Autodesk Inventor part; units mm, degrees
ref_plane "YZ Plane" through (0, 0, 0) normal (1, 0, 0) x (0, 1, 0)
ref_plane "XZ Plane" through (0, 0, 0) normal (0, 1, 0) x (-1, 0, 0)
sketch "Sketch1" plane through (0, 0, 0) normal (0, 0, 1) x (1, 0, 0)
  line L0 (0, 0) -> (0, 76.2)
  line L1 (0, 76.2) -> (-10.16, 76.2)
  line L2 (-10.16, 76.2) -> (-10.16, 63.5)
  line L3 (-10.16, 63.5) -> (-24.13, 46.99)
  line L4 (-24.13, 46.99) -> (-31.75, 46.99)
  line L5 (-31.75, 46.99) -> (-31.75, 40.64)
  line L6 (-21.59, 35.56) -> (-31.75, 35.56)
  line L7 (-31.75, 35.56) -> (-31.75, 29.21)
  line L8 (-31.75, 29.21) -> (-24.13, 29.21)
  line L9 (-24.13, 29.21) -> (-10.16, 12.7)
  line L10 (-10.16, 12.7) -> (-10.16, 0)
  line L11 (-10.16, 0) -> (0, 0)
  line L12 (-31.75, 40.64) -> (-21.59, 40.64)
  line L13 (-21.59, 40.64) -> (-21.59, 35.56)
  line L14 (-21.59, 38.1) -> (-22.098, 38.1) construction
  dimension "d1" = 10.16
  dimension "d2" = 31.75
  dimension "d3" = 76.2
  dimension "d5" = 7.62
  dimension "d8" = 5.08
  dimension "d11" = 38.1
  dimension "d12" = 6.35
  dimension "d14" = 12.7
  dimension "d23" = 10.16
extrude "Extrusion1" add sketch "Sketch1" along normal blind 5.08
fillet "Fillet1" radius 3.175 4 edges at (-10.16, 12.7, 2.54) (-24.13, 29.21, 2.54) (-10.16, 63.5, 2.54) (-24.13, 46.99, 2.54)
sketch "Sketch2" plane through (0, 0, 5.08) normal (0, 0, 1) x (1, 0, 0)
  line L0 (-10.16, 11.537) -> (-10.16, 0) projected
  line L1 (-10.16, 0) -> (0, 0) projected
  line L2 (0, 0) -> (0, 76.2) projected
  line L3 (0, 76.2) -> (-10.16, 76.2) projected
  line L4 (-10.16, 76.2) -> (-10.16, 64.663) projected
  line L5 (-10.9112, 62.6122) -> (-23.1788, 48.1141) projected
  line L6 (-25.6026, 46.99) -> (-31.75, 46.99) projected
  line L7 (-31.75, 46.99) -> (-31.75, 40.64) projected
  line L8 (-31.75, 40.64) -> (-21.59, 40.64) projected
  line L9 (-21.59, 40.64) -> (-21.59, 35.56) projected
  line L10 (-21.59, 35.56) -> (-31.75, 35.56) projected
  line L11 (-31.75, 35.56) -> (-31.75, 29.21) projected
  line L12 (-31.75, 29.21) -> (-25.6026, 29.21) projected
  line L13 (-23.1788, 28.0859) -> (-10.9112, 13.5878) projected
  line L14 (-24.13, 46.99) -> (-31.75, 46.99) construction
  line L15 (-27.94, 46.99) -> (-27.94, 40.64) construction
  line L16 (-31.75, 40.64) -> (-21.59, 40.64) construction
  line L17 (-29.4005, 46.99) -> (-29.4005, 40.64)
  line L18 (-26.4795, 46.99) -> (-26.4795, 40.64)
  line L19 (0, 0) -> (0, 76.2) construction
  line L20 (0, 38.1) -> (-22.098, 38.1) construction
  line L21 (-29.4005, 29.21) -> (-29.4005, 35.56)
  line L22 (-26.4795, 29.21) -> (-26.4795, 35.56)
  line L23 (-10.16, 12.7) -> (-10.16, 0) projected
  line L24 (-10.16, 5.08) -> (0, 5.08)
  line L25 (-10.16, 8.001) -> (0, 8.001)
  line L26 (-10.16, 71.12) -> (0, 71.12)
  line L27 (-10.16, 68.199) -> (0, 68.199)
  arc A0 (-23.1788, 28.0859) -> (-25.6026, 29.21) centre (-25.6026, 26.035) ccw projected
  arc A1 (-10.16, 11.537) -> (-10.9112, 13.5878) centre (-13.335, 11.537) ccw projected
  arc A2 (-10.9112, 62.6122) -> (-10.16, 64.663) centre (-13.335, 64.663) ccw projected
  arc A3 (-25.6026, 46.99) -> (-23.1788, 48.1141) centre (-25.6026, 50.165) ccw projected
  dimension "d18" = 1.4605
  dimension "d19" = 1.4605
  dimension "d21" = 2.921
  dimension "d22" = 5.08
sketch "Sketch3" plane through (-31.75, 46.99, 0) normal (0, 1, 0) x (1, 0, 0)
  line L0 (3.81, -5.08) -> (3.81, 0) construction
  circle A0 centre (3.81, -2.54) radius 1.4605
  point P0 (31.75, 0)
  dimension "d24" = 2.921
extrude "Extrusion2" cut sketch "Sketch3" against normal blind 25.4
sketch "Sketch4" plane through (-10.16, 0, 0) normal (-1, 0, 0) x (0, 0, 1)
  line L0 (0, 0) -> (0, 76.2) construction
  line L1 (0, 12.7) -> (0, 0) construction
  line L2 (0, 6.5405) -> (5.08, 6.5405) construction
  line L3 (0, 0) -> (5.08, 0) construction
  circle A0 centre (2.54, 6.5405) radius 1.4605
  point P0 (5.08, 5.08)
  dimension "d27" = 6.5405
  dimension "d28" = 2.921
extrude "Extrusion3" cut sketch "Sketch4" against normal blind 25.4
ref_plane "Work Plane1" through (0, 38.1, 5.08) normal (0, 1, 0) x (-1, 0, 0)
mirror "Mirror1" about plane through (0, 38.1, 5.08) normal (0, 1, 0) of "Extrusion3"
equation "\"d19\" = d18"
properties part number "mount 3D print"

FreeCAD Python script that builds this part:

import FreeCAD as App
import Part
import Sketcher
from FreeCAD import Vector
Q = App.Units.Quantity


def edges_at(feature, points):
    """Names of the edges that pass closest to the given points."""
    edges = feature.Shape.Edges
    near = lambda p: min(range(len(edges)), key=lambda i: edges[i].distToShape(Part.Vertex(*p))[0])
    return sorted({f"Edge{near(p) + 1}" for p in points})


def add_polygon(sketch, points):
    """Adds a closed chain of lines whose ends are joined by coincident constraints."""
    first, n = sketch.GeometryCount, len(points)
    for a, b in zip(points, points[1:] + points[:1]):
        sketch.addGeometry(Part.LineSegment(App.Vector(*a, 0), App.Vector(*b, 0)), False)
    for i in range(n):
        sketch.addConstraint(Sketcher.Constraint("Coincident", first + i, 2, first + (i + 1) % n, 1))

doc = App.newDocument("Part")
body = doc.addObject("PartDesign::Body", "Body")

sketch1 = body.newObject("Sketcher::SketchObject", "Sketch")
sketch1.AttachmentSupport = (doc.getObject("XY_Plane"), [""])
sketch1.MapMode = "FlatFace"
add_polygon(sketch1, [(-10.16, 0), (0, 0), (0, 76.2), (-10.16, 76.2), (-10.16, 63.5), (-24.13, 46.99), (-31.75, 46.99), (-31.75, 40.64), (-21.59, 40.64), (-21.59, 35.56), (-31.75, 35.56), (-31.75, 29.21), (-24.13, 29.21), (-10.16, 12.7)])
sketch1.addConstraint(Sketcher.Constraint("Horizontal", 0))
sketch1.addConstraint(Sketcher.Constraint("Vertical", 1))
sketch1.addConstraint(Sketcher.Constraint("Horizontal", 2))
sketch1.addConstraint(Sketcher.Constraint("Vertical", 3))
sketch1.addConstraint(Sketcher.Constraint("Horizontal", 5))
sketch1.addConstraint(Sketcher.Constraint("Vertical", 6))
sketch1.addConstraint(Sketcher.Constraint("Horizontal", 7))
sketch1.addConstraint(Sketcher.Constraint("Vertical", 8))
sketch1.addConstraint(Sketcher.Constraint("Horizontal", 9))
sketch1.addConstraint(Sketcher.Constraint("Vertical", 10))
sketch1.addConstraint(Sketcher.Constraint("Horizontal", 11))
sketch1.addConstraint(Sketcher.Constraint("Vertical", 13))
sketch1.addConstraint(Sketcher.Constraint("Coincident", 0, 2, -1, 1))
sketch1.addConstraint(Sketcher.Constraint("Vertical", 6, 2, 9, 2))
sketch1.addConstraint(Sketcher.Constraint("Vertical", 4, 2, 11, 2))
sketch1.addConstraint(Sketcher.Constraint("Vertical", 3, 2, 12, 2))
sketch1.addConstraint(Sketcher.Constraint("Equal", 2, 7))
sketch1.addConstraint(Sketcher.Constraint("Equal", 6, 10))
sketch1.addConstraint(Sketcher.Constraint("Equal", 3, 13))
sketch1.addConstraint(Sketcher.Constraint("Equal", 4, 12))
sketch1.addConstraint(Sketcher.Constraint("DistanceY", 1, 1, 1, 2, Q("3 in")))
sketch1.addConstraint(Sketcher.Constraint("DistanceX", 0, 1, 0, 2, Q("0.4 in")))
sketch1.addConstraint(Sketcher.Constraint("DistanceX", 5, 2, 5, 1, Q("0.3 in")))
sketch1.addConstraint(Sketcher.Constraint("DistanceY", 3, 2, 3, 1, Q("0.5 in")))
sketch1.addConstraint(Sketcher.Constraint("DistanceY", 8, 2, 8, 1, Q("0.2 in")))
sketch1.addConstraint(Sketcher.Constraint("DistanceY", 6, 2, 6, 1, Q("0.25 in")))
sketch1.addConstraint(Sketcher.Constraint("DistanceX", 5, 2, -1, 1, Q("1.25 in")))
pad1 = body.newObject("PartDesign::Pad", "Pad")
pad1.Profile = sketch1
pad1.Length = Q("0.2 in")
doc.recompute()

fillet = body.newObject("PartDesign::Fillet", "Fillet")
fillet.Base = (pad1, edges_at(pad1, [
    (-10.16, 12.7, 2.54),
    (-24.13, 29.21, 2.54),
    (-10.16, 63.5, 2.54),
    (-24.13, 46.99, 2.54),
]))
fillet.Radius = Q("0.125 in")

sketch2 = body.newObject("Sketcher::SketchObject", "Sketch001")
sketch2.AttachmentSupport = (doc.getObject("XZ_Plane"), [""])
sketch2.MapMode = "FlatFace"
sketch2.AttachmentOffset = App.Placement(Vector(0, 0, -1.85 * 25.4), App.Rotation())
sketch2.addGeometry(Part.Circle(Vector(-27.94, 2.54, 0), Vector(0, 0, 1), 1.4605), False)
sketch2.addConstraint(Sketcher.Constraint("Diameter", 0, Q("0.115 in")))
sketch2.addConstraint(Sketcher.Constraint("DistanceX", 0, 3, -1, 1, Q("1.1 in")))
sketch2.addConstraint(Sketcher.Constraint("DistanceY", -1, 1, 0, 3, Q("0.1 in")))
pocket1 = body.newObject("PartDesign::Pocket", "Pocket")
pocket1.Profile = sketch2
pocket1.Length = Q("1 in")
pocket1.Reversed = True

sketch3 = body.newObject("Sketcher::SketchObject", "Sketch002")
sketch3.AttachmentSupport = (doc.getObject("YZ_Plane"), [""])
sketch3.MapMode = "FlatFace"
sketch3.AttachmentOffset = App.Placement(Vector(0, 0, -0.4 * 25.4), App.Rotation())
sketch3.addGeometry(Part.Circle(Vector(6.5405, 2.54, 0), Vector(0, 0, 1), 1.4605), False)
sketch3.addConstraint(Sketcher.Constraint("Diameter", 0, Q("0.115 in")))
sketch3.addConstraint(Sketcher.Constraint("DistanceX", -1, 1, 0, 3, Q("0.2575 in")))
sketch3.addConstraint(Sketcher.Constraint("DistanceY", -1, 1, 0, 3, Q("0.1 in")))
pocket2 = body.newObject("PartDesign::Pocket", "Pocket001")
pocket2.Profile = sketch3
pocket2.Length = Q("1 in")
pocket2.Reversed = True
doc.recompute()

datumplane = body.newObject("PartDesign::Plane", "DatumPlane")
datumplane.AttachmentSupport = (doc.getObject("XZ_Plane"), [""])
datumplane.MapMode = "FlatFace"
datumplane.AttachmentOffset = App.Placement(Vector(0, 0, -1.5 * 25.4), App.Rotation())
mirrored = body.newObject("PartDesign::Mirrored", "Mirrored")
mirrored.Originals = [pocket2]
mirrored.MirrorPlane = (datumplane, [""])
body.Tip = mirrored

doc.recompute()
